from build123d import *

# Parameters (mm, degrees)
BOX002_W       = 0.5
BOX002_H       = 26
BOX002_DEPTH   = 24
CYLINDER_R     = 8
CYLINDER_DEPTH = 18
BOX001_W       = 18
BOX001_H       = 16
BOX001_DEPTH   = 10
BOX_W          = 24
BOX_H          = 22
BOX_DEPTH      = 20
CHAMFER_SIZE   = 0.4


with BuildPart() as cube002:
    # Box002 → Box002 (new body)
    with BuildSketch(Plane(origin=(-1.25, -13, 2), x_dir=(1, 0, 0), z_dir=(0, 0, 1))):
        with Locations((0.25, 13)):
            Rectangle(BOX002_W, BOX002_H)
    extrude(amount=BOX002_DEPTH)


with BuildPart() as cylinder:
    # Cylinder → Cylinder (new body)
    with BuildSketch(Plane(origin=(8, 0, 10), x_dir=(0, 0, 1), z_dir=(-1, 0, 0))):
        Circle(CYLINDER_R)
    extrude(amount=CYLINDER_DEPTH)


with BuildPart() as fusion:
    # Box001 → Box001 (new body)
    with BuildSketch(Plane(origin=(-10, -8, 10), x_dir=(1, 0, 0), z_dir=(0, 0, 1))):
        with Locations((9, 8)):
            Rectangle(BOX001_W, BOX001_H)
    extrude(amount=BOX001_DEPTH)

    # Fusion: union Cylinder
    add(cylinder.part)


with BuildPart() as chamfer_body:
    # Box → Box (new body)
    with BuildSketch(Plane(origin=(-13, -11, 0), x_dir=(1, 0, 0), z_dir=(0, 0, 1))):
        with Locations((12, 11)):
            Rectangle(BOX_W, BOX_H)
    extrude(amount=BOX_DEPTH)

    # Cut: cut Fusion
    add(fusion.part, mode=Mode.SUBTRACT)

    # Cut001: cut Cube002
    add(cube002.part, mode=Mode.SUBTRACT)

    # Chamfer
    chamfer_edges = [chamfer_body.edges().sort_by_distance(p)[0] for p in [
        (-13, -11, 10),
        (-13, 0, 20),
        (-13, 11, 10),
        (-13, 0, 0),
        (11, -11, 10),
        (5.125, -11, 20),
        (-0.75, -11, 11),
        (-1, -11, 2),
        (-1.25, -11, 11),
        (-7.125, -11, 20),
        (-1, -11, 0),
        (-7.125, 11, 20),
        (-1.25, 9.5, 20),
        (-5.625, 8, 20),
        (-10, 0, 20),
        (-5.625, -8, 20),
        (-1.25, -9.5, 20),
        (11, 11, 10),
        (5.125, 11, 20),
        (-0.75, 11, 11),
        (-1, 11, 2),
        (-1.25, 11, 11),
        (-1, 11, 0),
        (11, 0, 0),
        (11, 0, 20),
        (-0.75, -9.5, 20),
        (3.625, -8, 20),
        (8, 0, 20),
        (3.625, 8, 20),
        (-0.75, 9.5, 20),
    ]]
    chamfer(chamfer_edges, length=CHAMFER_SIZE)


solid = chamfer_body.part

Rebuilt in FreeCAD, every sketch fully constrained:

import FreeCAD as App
import Part
import Sketcher
from FreeCAD import Vector


def edges_at(feature, points):
    """Names of the edges that pass closest to the given points."""
    edges = feature.Shape.Edges
    near = lambda p: min(range(len(edges)), key=lambda i: edges[i].distToShape(Part.Vertex(*p))[0])
    return sorted({f"Edge{near(p) + 1}" for p in points})


def add_polygon(sketch, points):
    """Adds a closed chain of lines whose ends are joined by coincident constraints."""
    first, n = sketch.GeometryCount, len(points)
    for a, b in zip(points, points[1:] + points[:1]):
        sketch.addGeometry(Part.LineSegment(App.Vector(*a, 0), App.Vector(*b, 0)), False)
    for i in range(n):
        sketch.addConstraint(Sketcher.Constraint("Coincident", first + i, 2, first + (i + 1) % n, 1))

doc = App.newDocument("Part")
body = doc.addObject("PartDesign::Body", "Body")

# Sketch on XY plane
sketch1 = doc.addObject("Sketcher::SketchObject", "Sketch")
body.addObject(sketch1)
sketch1.AttachmentSupport = (doc.XY_Plane, [""])
sketch1.MapMode = "FlatFace"
sketch1.AttachmentOffset = App.Placement(Vector(0, 0, 2), App.Rotation())
add_polygon(sketch1, [(-1.2, 13), (-1.2, -13), (-0.8, -13), (-0.8, 13)])  # lines 0-3
sketch1.addConstraint(Sketcher.Constraint("Vertical", 0))
sketch1.addConstraint(Sketcher.Constraint("Horizontal", 1))
sketch1.addConstraint(Sketcher.Constraint("Vertical", 2))
sketch1.addConstraint(Sketcher.Constraint("Horizontal", 3))
sketch1.addConstraint(Sketcher.Constraint("DistanceY", 0, 2, 0, 1, 26.0))
sketch1.addConstraint(Sketcher.Constraint("DistanceX", 1, 1, 1, 2, 0.5))
sketch1.addConstraint(Sketcher.Constraint("DistanceY", 0, 2, -1, 1, 13.0))
sketch1.addConstraint(Sketcher.Constraint("DistanceX", 0, 2, -1, 1, 1.25))
pad1 = doc.addObject("PartDesign::Pad", "Pad")
body.addObject(pad1)
pad1.Profile = sketch1
pad1.Length = 24
body2 = doc.addObject("PartDesign::Body", "Body001")

# Sketch on YZ plane
sketch2 = doc.addObject("Sketcher::SketchObject", "Sketch001")
body2.addObject(sketch2)
sketch2.AttachmentSupport = (doc.getObject("YZ_Plane001"), [""])
sketch2.MapMode = "FlatFace"
sketch2.AttachmentOffset = App.Placement(Vector(0, 0, 8), App.Rotation())
sketch2.addGeometry(Part.Circle(Vector(0, 10, 0), Vector(0, 0, 1), 8), False)
sketch2.addConstraint(Sketcher.Constraint("PointOnObject", 0, 3, -2))
sketch2.addConstraint(Sketcher.Constraint("Diameter", 0, 16.0))
sketch2.addConstraint(Sketcher.Constraint("DistanceY", -1, 1, 0, 3, 10.0))
pad2 = doc.addObject("PartDesign::Pad", "Pad001")
body2.addObject(pad2)
pad2.Profile = sketch2
pad2.Length = 18
pad2.Reversed = True
body3 = doc.addObject("PartDesign::Body", "Body002")

# Sketch on XY plane
sketch3 = doc.addObject("Sketcher::SketchObject", "Sketch002")
body3.addObject(sketch3)
sketch3.AttachmentSupport = (doc.getObject("XY_Plane002"), [""])
sketch3.MapMode = "FlatFace"
sketch3.AttachmentOffset = App.Placement(Vector(0, 0, 10), App.Rotation())
add_polygon(sketch3, [(-10, 8), (-10, -8), (8, -8), (8, 8)])  # lines 0-3
sketch3.addConstraint(Sketcher.Constraint("Vertical", 0))
sketch3.addConstraint(Sketcher.Constraint("Horizontal", 1))
sketch3.addConstraint(Sketcher.Constraint("Vertical", 2))
sketch3.addConstraint(Sketcher.Constraint("Horizontal", 3))
sketch3.addConstraint(Sketcher.Constraint("DistanceX", 1, 1, 1, 2, 18.0))
sketch3.addConstraint(Sketcher.Constraint("DistanceY", 0, 2, 0, 1, 16.0))
sketch3.addConstraint(Sketcher.Constraint("DistanceX", 0, 2, -1, 1, 10.0))
sketch3.addConstraint(Sketcher.Constraint("DistanceY", 0, 2, -1, 1, 8.0))
pad3 = doc.addObject("PartDesign::Pad", "Pad002")
body3.addObject(pad3)
pad3.Profile = sketch3
pad3.Length = 10
doc.recompute()

boolean = doc.addObject("PartDesign::Boolean", "Boolean")
body3.addObject(boolean)
boolean.Type = "Fuse"
boolean.addObjects([body2])
body4 = doc.addObject("PartDesign::Body", "Body003")

# Sketch on XY plane
sketch4 = doc.addObject("Sketcher::SketchObject", "Sketch003")
body4.addObject(sketch4)
sketch4.AttachmentSupport = (doc.getObject("XY_Plane003"), [""])
sketch4.MapMode = "FlatFace"
add_polygon(sketch4, [(-13, 11), (-13, -11), (11, -11), (11, 11)])  # lines 0-3
sketch4.addConstraint(Sketcher.Constraint("Vertical", 0))
sketch4.addConstraint(Sketcher.Constraint("Horizontal", 1))
sketch4.addConstraint(Sketcher.Constraint("Vertical", 2))
sketch4.addConstraint(Sketcher.Constraint("Horizontal", 3))
sketch4.addConstraint(Sketcher.Constraint("DistanceX", 1, 1, 1, 2, 24.0))
sketch4.addConstraint(Sketcher.Constraint("DistanceY", 0, 2, 0, 1, 22.0))
sketch4.addConstraint(Sketcher.Constraint("DistanceX", 0, 2, -1, 1, 13.0))
sketch4.addConstraint(Sketcher.Constraint("DistanceY", 0, 2, -1, 1, 11.0))
pad4 = doc.addObject("PartDesign::Pad", "Pad003")
body4.addObject(pad4)
pad4.Profile = sketch4
pad4.Length = 20
doc.recompute()

boolean2 = doc.addObject("PartDesign::Boolean", "Boolean001")
body4.addObject(boolean2)
boolean2.Type = "Cut"
boolean2.addObjects([body3])
doc.recompute()

boolean3 = doc.addObject("PartDesign::Boolean", "Boolean002")
body4.addObject(boolean3)
boolean3.Type = "Cut"
boolean3.addObjects([body])
doc.recompute()

chamfer = doc.addObject("PartDesign::Chamfer", "Chamfer")
body4.addObject(chamfer)
chamfer.Base = (boolean3, edges_at(boolean3, [
    (-13, -11, 10),
    (-13, 0, 20),
    (-13, 11, 10),
    (-13, 0, 0),
    (11, -11, 10),
    (5.125, -11, 20),
    (-0.75, -11, 11),
    (-1, -11, 2),
    (-1.25, -11, 11),
    (-7.125, -11, 20),
    (-1, -11, 0),
    (-7.125, 11, 20),
    (-1.25, 9.5, 20),
    (-5.625, 8, 20),
    (-10, 0, 20),
    (-5.625, -8, 20),
    (-1.25, -9.5, 20),
    (11, 11, 10),
    (5.125, 11, 20),
    (-0.75, 11, 11),
    (-1, 11, 2),
    (-1.25, 11, 11),
    (-1, 11, 0),
    (11, 0, 0),
    (11, 0, 20),
    (-0.75, -9.5, 20),
    (3.625, -8, 20),
    (8, 0, 20),
    (3.625, 8, 20),
    (-0.75, 9.5, 20),
]))
chamfer.Size = 0.4

doc.recompute()
